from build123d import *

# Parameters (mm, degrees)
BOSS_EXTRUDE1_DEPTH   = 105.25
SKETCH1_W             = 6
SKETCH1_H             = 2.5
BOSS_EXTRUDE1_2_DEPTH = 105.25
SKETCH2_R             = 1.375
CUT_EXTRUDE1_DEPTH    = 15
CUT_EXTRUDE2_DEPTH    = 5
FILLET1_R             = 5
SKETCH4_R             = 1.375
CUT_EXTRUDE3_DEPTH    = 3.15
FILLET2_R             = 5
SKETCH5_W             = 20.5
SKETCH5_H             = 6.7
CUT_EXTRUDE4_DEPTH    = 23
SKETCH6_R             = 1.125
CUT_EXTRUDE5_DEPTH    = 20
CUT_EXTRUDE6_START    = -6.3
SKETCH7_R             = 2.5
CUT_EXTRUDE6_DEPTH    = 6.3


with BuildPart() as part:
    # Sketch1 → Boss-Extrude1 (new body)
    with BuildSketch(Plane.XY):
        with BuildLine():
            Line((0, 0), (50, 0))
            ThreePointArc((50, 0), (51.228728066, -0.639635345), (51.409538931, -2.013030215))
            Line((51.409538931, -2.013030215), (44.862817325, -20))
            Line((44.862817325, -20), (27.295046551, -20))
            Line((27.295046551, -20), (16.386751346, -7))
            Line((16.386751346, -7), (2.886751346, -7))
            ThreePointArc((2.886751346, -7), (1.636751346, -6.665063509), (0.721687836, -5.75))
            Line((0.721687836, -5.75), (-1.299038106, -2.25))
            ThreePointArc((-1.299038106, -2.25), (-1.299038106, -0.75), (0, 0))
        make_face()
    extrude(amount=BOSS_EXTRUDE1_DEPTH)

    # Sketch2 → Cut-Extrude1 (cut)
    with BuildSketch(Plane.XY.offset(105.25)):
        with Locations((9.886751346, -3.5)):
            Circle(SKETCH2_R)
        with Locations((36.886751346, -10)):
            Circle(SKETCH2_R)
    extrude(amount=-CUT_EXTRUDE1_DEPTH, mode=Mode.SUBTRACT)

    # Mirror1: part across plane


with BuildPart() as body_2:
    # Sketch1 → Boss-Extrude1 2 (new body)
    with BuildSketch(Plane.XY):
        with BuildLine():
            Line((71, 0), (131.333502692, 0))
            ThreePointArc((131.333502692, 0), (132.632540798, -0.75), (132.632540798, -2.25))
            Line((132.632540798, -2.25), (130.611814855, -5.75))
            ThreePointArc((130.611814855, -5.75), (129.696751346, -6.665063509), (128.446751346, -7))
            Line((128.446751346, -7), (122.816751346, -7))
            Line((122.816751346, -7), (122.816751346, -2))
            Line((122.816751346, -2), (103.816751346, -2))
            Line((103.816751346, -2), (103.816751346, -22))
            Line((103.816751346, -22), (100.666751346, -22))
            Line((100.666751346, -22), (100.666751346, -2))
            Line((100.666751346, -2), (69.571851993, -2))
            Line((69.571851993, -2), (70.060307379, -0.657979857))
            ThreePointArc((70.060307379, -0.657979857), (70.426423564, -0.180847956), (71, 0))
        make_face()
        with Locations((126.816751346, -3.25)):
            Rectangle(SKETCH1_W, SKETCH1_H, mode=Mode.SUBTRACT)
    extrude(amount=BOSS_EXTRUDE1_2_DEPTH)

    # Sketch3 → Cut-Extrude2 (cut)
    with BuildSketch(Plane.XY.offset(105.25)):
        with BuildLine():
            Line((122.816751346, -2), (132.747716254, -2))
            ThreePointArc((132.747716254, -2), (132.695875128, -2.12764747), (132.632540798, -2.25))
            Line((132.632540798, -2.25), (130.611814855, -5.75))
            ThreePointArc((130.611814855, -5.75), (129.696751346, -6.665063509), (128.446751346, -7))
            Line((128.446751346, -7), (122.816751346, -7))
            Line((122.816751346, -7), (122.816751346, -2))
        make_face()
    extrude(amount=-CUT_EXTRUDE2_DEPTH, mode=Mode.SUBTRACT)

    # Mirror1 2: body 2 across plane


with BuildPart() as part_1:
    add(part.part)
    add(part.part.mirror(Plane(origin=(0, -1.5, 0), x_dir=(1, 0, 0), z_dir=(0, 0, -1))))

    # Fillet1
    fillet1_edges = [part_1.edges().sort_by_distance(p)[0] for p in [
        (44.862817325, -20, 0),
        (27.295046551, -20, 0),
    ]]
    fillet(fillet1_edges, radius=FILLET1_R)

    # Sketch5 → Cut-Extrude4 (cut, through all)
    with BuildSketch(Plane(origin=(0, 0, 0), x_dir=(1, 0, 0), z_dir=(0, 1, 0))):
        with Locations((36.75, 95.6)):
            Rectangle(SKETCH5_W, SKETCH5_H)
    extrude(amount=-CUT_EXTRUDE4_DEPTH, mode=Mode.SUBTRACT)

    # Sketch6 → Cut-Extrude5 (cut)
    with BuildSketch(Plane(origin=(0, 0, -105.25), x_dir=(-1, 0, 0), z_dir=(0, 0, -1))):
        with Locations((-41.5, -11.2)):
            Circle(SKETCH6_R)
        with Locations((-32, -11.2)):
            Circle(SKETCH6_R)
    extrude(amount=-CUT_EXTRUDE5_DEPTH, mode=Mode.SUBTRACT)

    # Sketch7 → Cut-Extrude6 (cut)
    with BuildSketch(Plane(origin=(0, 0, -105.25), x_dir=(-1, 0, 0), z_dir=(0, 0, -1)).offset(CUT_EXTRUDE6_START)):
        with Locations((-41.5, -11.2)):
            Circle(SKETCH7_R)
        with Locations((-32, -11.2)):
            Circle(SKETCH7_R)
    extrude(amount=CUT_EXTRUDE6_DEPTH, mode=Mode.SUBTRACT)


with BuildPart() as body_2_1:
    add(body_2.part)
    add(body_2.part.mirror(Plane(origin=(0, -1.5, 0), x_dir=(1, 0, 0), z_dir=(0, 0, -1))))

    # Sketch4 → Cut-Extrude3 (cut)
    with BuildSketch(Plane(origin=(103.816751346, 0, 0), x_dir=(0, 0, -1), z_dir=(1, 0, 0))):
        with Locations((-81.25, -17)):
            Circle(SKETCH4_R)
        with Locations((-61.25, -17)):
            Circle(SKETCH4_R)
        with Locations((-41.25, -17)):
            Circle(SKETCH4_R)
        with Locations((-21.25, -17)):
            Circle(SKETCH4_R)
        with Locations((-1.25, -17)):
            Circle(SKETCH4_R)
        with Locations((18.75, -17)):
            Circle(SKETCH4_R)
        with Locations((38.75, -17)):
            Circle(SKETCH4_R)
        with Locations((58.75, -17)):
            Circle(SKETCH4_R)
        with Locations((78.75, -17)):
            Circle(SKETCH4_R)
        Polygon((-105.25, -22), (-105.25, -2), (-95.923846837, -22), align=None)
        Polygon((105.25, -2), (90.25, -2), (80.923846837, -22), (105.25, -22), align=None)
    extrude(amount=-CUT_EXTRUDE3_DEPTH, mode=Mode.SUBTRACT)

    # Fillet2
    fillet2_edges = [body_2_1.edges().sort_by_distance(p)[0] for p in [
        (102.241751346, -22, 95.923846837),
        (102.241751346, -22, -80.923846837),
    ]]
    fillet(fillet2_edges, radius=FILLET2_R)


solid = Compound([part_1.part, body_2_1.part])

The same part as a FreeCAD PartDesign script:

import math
import FreeCAD as App
import Part
import Sketcher
from FreeCAD import Vector
Q = App.Units.Quantity


def edges_at(feature, points):
    """Names of the edges that pass closest to the given points."""
    edges = feature.Shape.Edges
    near = lambda p: min(range(len(edges)), key=lambda i: edges[i].distToShape(Part.Vertex(*p))[0])
    return sorted({f"Edge{near(p) + 1}" for p in points})

doc = App.newDocument("Part")
body = doc.addObject("PartDesign::Body", "Body")

# Sketch on XY plane
sketch1 = body.newObject("Sketcher::SketchObject", "Sketch")
sketch1.AttachmentSupport = (doc.getObject("XY_Plane"), [""])
sketch1.MapMode = "FlatFace"
sketch1.addGeometry(Part.LineSegment(Vector(50, 0, 0), Vector(0, 0, 0)), False)
sketch1.addGeometry(Part.ArcOfCircle(Part.Circle(Vector(0, -1.5, 0), Vector(0, 0, 1), 1.5), math.radians(90), math.radians(210)), False)
sketch1.addGeometry(Part.LineSegment(Vector(-1.299038, -2.25, 0), Vector(0.721688, -5.75, 0)), False)
sketch1.addGeometry(Part.ArcOfCircle(Part.Circle(Vector(2.886751, -4.5, 0), Vector(0, 0, 1), 2.5), math.radians(-150), math.radians(-90)), False)
sketch1.addGeometry(Part.LineSegment(Vector(2.886751, -7, 0), Vector(16.386751, -7, 0)), False)
sketch1.addGeometry(Part.LineSegment(Vector(16.386751, -7, 0), Vector(27.295047, -20, 0)), False)
sketch1.addGeometry(Part.LineSegment(Vector(27.295047, -20, 0), Vector(44.862817, -20, 0)), False)
sketch1.addGeometry(Part.LineSegment(Vector(44.862817, -20, 0), Vector(51.409539, -2.01303, 0)), False)
sketch1.addGeometry(Part.ArcOfCircle(Part.Circle(Vector(50, -1.5, 0), Vector(0, 0, 1), 1.5), math.radians(-20), math.radians(90)), False)
sketch1.addConstraint(Sketcher.Constraint("Tangent", 0, 2, 1, 1))
sketch1.addConstraint(Sketcher.Constraint("Tangent", 1, 2, 2, 1))
sketch1.addConstraint(Sketcher.Constraint("Tangent", 2, 2, 3, 1))
sketch1.addConstraint(Sketcher.Constraint("Tangent", 3, 2, 4, 1))
sketch1.addConstraint(Sketcher.Constraint("Coincident", 4, 2, 5, 1))
sketch1.addConstraint(Sketcher.Constraint("Coincident", 5, 2, 6, 1))
sketch1.addConstraint(Sketcher.Constraint("Coincident", 6, 2, 7, 1))
sketch1.addConstraint(Sketcher.Constraint("Tangent", 7, 2, 8, 1))
sketch1.addConstraint(Sketcher.Constraint("Tangent", 8, 2, 0, 1))
sketch1.addConstraint(Sketcher.Constraint("Horizontal", 0))
sketch1.addConstraint(Sketcher.Constraint("Horizontal", 4))
sketch1.addConstraint(Sketcher.Constraint("Horizontal", 6))
sketch1.addConstraint(Sketcher.Constraint("Coincident", 0, 2, -1, 1))
sketch1.addConstraint(Sketcher.Constraint("Equal", 1, 8))
sketch1.addConstraint(Sketcher.Constraint("Radius", 1, 1.5))
sketch1.addConstraint(Sketcher.Constraint("Radius", 3, 2.5))
sketch1.addConstraint(Sketcher.Constraint("DistanceX", 0, 2, 0, 1, 50.0))
sketch1.addConstraint(Sketcher.Constraint("Angle", 2, Q("-60 deg")))
sketch1.addConstraint(Sketcher.Constraint("Angle", 5, Q("-50 deg")))
sketch1.addConstraint(Sketcher.Constraint("Angle", 7, Q("70 deg")))
sketch1.addConstraint(Sketcher.Constraint("DistanceX", 4, 1, 4, 2, 13.5))
sketch1.addConstraint(Sketcher.Constraint("DistanceY", 3, 2, -1, 1, 7.0))
sketch1.addConstraint(Sketcher.Constraint("DistanceY", 5, 2, -1, 1, 20.0))
pad1 = body.newObject("PartDesign::Pad", "Pad")
pad1.Profile = sketch1
pad1.Length = 105.25

# Sketch on XY plane
sketch2 = body.newObject("Sketcher::SketchObject", "Sketch001")
sketch2.AttachmentSupport = (doc.getObject("XY_Plane"), [""])
sketch2.MapMode = "FlatFace"
sketch2.AttachmentOffset = App.Placement(Vector(0, 0, 105.25), App.Rotation())
sketch2.addGeometry(Part.Circle(Vector(9.886751, -3.5, 0), Vector(0, 0, 1), 1.375), False)
sketch2.addGeometry(Part.Circle(Vector(36.886751, -10, 0), Vector(0, 0, 1), 1.375), False)
sketch2.addConstraint(Sketcher.Constraint("Equal", 0, 1))
sketch2.addConstraint(Sketcher.Constraint("Diameter", 0, 2.75))
sketch2.addConstraint(Sketcher.Constraint("DistanceY", 1, 3, -1, 1, 10.0))
sketch2.addConstraint(Sketcher.Constraint("DistanceX", 0, 3, 1, 3, 27.0))
sketch2.addConstraint(Sketcher.Constraint("DistanceY", 0, 3, -1, 1, 3.5))
sketch2.addConstraint(Sketcher.Constraint("DistanceX", -1, 1, 0, 3, 9.886751))
pocket1 = body.newObject("PartDesign::Pocket", "Pocket")
pocket1.Profile = sketch2
pocket1.Length = 15
body2 = doc.addObject("PartDesign::Body", "Body001")

# Sketch on XY plane
sketch3 = body2.newObject("Sketcher::SketchObject", "Sketch002")
sketch3.AttachmentSupport = (doc.getObject("XY_Plane001"), [""])
sketch3.MapMode = "FlatFace"
sketch3.addGeometry(Part.LineSegment(Vector(131.333503, 0, 0), Vector(71, 0, 0)), False)
sketch3.addGeometry(Part.ArcOfCircle(Part.Circle(Vector(71, -1, 0), Vector(0, 0, 1), 1), math.radians(90), math.radians(160)), False)
sketch3.addGeometry(Part.LineSegment(Vector(70.060307, -0.65798, 0), Vector(69.571852, -2, 0)), False)
sketch3.addGeometry(Part.LineSegment(Vector(69.571852, -2, 0), Vector(100.666751, -2, 0)), False)
sketch3.addGeometry(Part.LineSegment(Vector(100.666751, -2, 0), Vector(100.666751, -22, 0)), False)
sketch3.addGeometry(Part.LineSegment(Vector(100.666751, -22, 0), Vector(103.816751, -22, 0)), False)
sketch3.addGeometry(Part.LineSegment(Vector(103.816751, -22, 0), Vector(103.816751, -2, 0)), False)
sketch3.addGeometry(Part.LineSegment(Vector(103.816751, -2, 0), Vector(122.816751, -2, 0)), False)
sketch3.addGeometry(Part.LineSegment(Vector(122.816751, -2, 0), Vector(122.816751, -7, 0)), False)
sketch3.addGeometry(Part.LineSegment(Vector(122.816751, -7, 0), Vector(128.446751, -7, 0)), False)
sketch3.addGeometry(Part.ArcOfCircle(Part.Circle(Vector(128.446751, -4.5, 0), Vector(0, 0, 1), 2.5), math.radians(-90), math.radians(-30)), False)
sketch3.addGeometry(Part.LineSegment(Vector(130.611815, -5.75, 0), Vector(132.632541, -2.25, 0)), False)
sketch3.addGeometry(Part.ArcOfCircle(Part.Circle(Vector(131.333503, -1.5, 0), Vector(0, 0, 1), 1.5), math.radians(-30), math.radians(90)), False)
sketch3.addGeometry(Part.LineSegment(Vector(123.816751, -4.5, 0), Vector(123.816751, -2, 0)), False)
sketch3.addGeometry(Part.LineSegment(Vector(123.816751, -2, 0), Vector(129.816751, -2, 0)), False)
sketch3.addGeometry(Part.LineSegment(Vector(129.816751, -2, 0), Vector(129.816751, -4.5, 0)), False)
sketch3.addGeometry(Part.LineSegment(Vector(129.816751, -4.5, 0), Vector(123.816751, -4.5, 0)), False)
sketch3.addConstraint(Sketcher.Constraint("Tangent", 0, 2, 1, 1))
sketch3.addConstraint(Sketcher.Constraint("Tangent", 1, 2, 2, 1))
sketch3.addConstraint(Sketcher.Constraint("Coincident", 2, 2, 3, 1))
sketch3.addConstraint(Sketcher.Constraint("Coincident", 3, 2, 4, 1))
sketch3.addConstraint(Sketcher.Constraint("Coincident", 4, 2, 5, 1))
sketch3.addConstraint(Sketcher.Constraint("Coincident", 5, 2, 6, 1))
sketch3.addConstraint(Sketcher.Constraint("Coincident", 6, 2, 7, 1))
sketch3.addConstraint(Sketcher.Constraint("Coincident", 7, 2, 8, 1))
sketch3.addConstraint(Sketcher.Constraint("Coincident", 8, 2, 9, 1))
sketch3.addConstraint(Sketcher.Constraint("Tangent", 9, 2, 10, 1))
sketch3.addConstraint(Sketcher.Constraint("Tangent", 10, 2, 11, 1))
sketch3.addConstraint(Sketcher.Constraint("Tangent", 11, 2, 12, 1))
sketch3.addConstraint(Sketcher.Constraint("Tangent", 12, 2, 0, 1))
sketch3.addConstraint(Sketcher.Constraint("Coincident", 13, 2, 14, 1))
sketch3.addConstraint(Sketcher.Constraint("Coincident", 14, 2, 15, 1))
sketch3.addConstraint(Sketcher.Constraint("Coincident", 15, 2, 16, 1))
sketch3.addConstraint(Sketcher.Constraint("Coincident", 16, 2, 13, 1))
sketch3.addConstraint(Sketcher.Constraint("Horizontal", 0))
sketch3.addConstraint(Sketcher.Constraint("Horizontal", 3))
sketch3.addConstraint(Sketcher.Constraint("Vertical", 4))
sketch3.addConstraint(Sketcher.Constraint("Horizontal", 5))
sketch3.addConstraint(Sketcher.Constraint("Vertical", 6))
sketch3.addConstraint(Sketcher.Constraint("Horizontal", 7))
sketch3.addConstraint(Sketcher.Constraint("Vertical", 8))
sketch3.addConstraint(Sketcher.Constraint("Horizontal", 9))
sketch3.addConstraint(Sketcher.Constraint("Vertical", 13))
sketch3.addConstraint(Sketcher.Constraint("Horizontal", 14))
sketch3.addConstraint(Sketcher.Constraint("Vertical", 15))
sketch3.addConstraint(Sketcher.Constraint("Horizontal", 16))
sketch3.addConstraint(Sketcher.Constraint("PointOnObject", 0, 2, -1))
sketch3.addConstraint(Sketcher.Constraint("Horizontal", 3, 2, 6, 2))
sketch3.addConstraint(Sketcher.Constraint("Horizontal", 7, 2, 13, 2))
sketch3.addConstraint(Sketcher.Constraint("Horizontal", 10, 3, 15, 2))
sketch3.addConstraint(Sketcher.Constraint("Radius", 1, 1.0))
sketch3.addConstraint(Sketcher.Constraint("Radius", 10, 2.5))
sketch3.addConstraint(Sketcher.Constraint("Radius", 12, 1.5))
sketch3.addConstraint(Sketcher.Constraint("DistanceX", 7, 1, 7, 2, 19.0))
sketch3.addConstraint(Sketcher.Constraint("DistanceX", 14, 1, 14, 2, 6.0))
sketch3.addConstraint(Sketcher.Constraint("DistanceY", 4, 2, 4, 1, 20.0))
sketch3.addConstraint(Sketcher.Constraint("DistanceY", 8, 2, 8, 1, 5.0))
sketch3.addConstraint(Sketcher.Constraint("Angle", 2, Q("-110 deg")))
sketch3.addConstraint(Sketcher.Constraint("Angle", 11, Q("60 deg")))
sketch3.addConstraint(Sketcher.Constraint("DistanceX", -1, 1, 1, 3, 71.0))
sketch3.addConstraint(Sketcher.Constraint("DistanceY", 2, 2, -1, 1, 2.0))
sketch3.addConstraint(Sketcher.Constraint("DistanceX", 7, 2, 13, 2, 1.0))
sketch3.addConstraint(Sketcher.Constraint("DistanceX", 5, 1, 5, 2, 3.15))
sketch3.addConstraint(Sketcher.Constraint("DistanceX", 9, 1, 9, 2, 5.63))
sketch3.addConstraint(Sketcher.Constraint("DistanceX", 3, 1, 3, 2, 31.094899))
pad2 = body2.newObject("PartDesign::Pad", "Pad001")
pad2.Profile = sketch3
pad2.Length = 105.25

# Sketch on XY plane
sketch4 = body2.newObject("Sketcher::SketchObject", "Sketch003")
sketch4.AttachmentSupport = (doc.getObject("XY_Plane001"), [""])
sketch4.MapMode = "FlatFace"
sketch4.AttachmentOffset = App.Placement(Vector(0, 0, 105.25), App.Rotation())
sketch4.addGeometry(Part.LineSegment(Vector(132.747716, -2, 0), Vector(122.816751, -2, 0)), False)
sketch4.addGeometry(Part.LineSegment(Vector(122.816751, -2, 0), Vector(122.816751, -7, 0)), False)
sketch4.addGeometry(Part.LineSegment(Vector(122.816751, -7, 0), Vector(128.446751, -7, 0)), False)
sketch4.addGeometry(Part.ArcOfCircle(Part.Circle(Vector(128.446751, -4.5, 0), Vector(0, 0, 1), 2.5), math.radians(-90), math.radians(-30)), False)
sketch4.addGeometry(Part.LineSegment(Vector(130.611815, -5.75, 0), Vector(132.632541, -2.25, 0)), False)
sketch4.addGeometry(Part.ArcOfCircle(Part.Circle(Vector(131.333503, -1.5, 0), Vector(0, 0, 1), 1.5), math.radians(-30), math.radians(-19.47122)), False)
sketch4.addConstraint(Sketcher.Constraint("Coincident", 0, 2, 1, 1))
sketch4.addConstraint(Sketcher.Constraint("Coincident", 1, 2, 2, 1))
sketch4.addConstraint(Sketcher.Constraint("Tangent", 2, 2, 3, 1))
sketch4.addConstraint(Sketcher.Constraint("Tangent", 3, 2, 4, 1))
sketch4.addConstraint(Sketcher.Constraint("Tangent", 4, 2, 5, 1))
sketch4.addConstraint(Sketcher.Constraint("Coincident", 5, 2, 0, 1))
sketch4.addConstraint(Sketcher.Constraint("Horizontal", 0))
sketch4.addConstraint(Sketcher.Constraint("Vertical", 1))
sketch4.addConstraint(Sketcher.Constraint("Horizontal", 2))
sketch4.addConstraint(Sketcher.Constraint("Radius", 3, 2.5))
sketch4.addConstraint(Sketcher.Constraint("Radius", 5, 1.5))
sketch4.addConstraint(Sketcher.Constraint("DistanceY", 1, 2, 1, 1, 5.0))
sketch4.addConstraint(Sketcher.Constraint("Angle", 4, Q("60 deg")))
sketch4.addConstraint(Sketcher.Constraint("DistanceY", 0, 2, -1, 1, 2.0))
sketch4.addConstraint(Sketcher.Constraint("DistanceY", 3, 3, 5, 3, 3.0))
sketch4.addConstraint(Sketcher.Constraint("DistanceX", 2, 1, 2, 2, 5.63))
sketch4.addConstraint(Sketcher.Constraint("DistanceX", -1, 1, 3, 3, 128.446751))
pocket2 = body2.newObject("PartDesign::Pocket", "Pocket001")
pocket2.Profile = sketch4
pocket2.Length = 5
body3 = doc.addObject("PartDesign::Body", "Body002")
doc.recompute()

body3.BaseFeature = body
doc.recompute()

mirroring = doc.addObject("Part::Mirroring", "Mirroring")
mirroring.Source = body
mirroring.Base = Vector(0, -1.5, 0)
mirroring.Normal = Vector(0, 0, -1)
body4 = doc.addObject("PartDesign::Body", "Body003")
body4.BaseFeature = mirroring
boolean = body3.newObject("PartDesign::Boolean", "Boolean")
boolean.Type = "Fuse"
boolean.addObjects([body4])
doc.recompute()

fillet = body3.newObject("PartDesign::Fillet", "Fillet")
fillet.Base = (boolean, edges_at(boolean, [(44.863, -20, 0), (27.295, -20, 0)]))
fillet.Radius = 5

# Sketch on XZ plane
sketch5 = body3.newObject("Sketcher::SketchObject", "Sketch004")
sketch5.AttachmentSupport = (doc.getObject("XZ_Plane002"), [""])
sketch5.MapMode = "FlatFace"
sketch5.addGeometry(Part.LineSegment(Vector(26.5, -98.95, 0), Vector(26.5, -92.25, 0)), False)
sketch5.addGeometry(Part.LineSegment(Vector(26.5, -92.25, 0), Vector(47, -92.25, 0)), False)
sketch5.addGeometry(Part.LineSegment(Vector(47, -92.25, 0), Vector(47, -98.95, 0)), False)
sketch5.addGeometry(Part.LineSegment(Vector(47, -98.95, 0), Vector(26.5, -98.95, 0)), False)
sketch5.addConstraint(Sketcher.Constraint("Coincident", 0, 2, 1, 1))
sketch5.addConstraint(Sketcher.Constraint("Coincident", 1, 2, 2, 1))
sketch5.addConstraint(Sketcher.Constraint("Coincident", 2, 2, 3, 1))
sketch5.addConstraint(Sketcher.Constraint("Coincident", 3, 2, 0, 1))
sketch5.addConstraint(Sketcher.Constraint("Vertical", 0))
sketch5.addConstraint(Sketcher.Constraint("Horizontal", 1))
sketch5.addConstraint(Sketcher.Constraint("Vertical", 2))
sketch5.addConstraint(Sketcher.Constraint("Horizontal", 3))
sketch5.addConstraint(Sketcher.Constraint("DistanceX", 1, 1, 1, 2, 20.5))
sketch5.addConstraint(Sketcher.Constraint("DistanceY", 0, 1, 0, 2, 6.7))
sketch5.addConstraint(Sketcher.Constraint("DistanceX", -1, 1, 1, 2, 47.0))
sketch5.addConstraint(Sketcher.Constraint("DistanceY", 0, 2, -1, 1, 92.25))
pocket3 = body3.newObject("PartDesign::Pocket", "Pocket002")
pocket3.Profile = sketch5
pocket3.Type = "ThroughAll"
pocket3.Reversed = True

# Sketch on XY plane
sketch6 = body3.newObject("Sketcher::SketchObject", "Sketch005")
sketch6.AttachmentSupport = (doc.getObject("XY_Plane002"), [""])
sketch6.MapMode = "FlatFace"
sketch6.AttachmentOffset = App.Placement(Vector(0, 0, -105.25), App.Rotation())
sketch6.addGeometry(Part.Circle(Vector(41.5, -11.2, 0), Vector(0, 0, 1), 1.125), False)
sketch6.addGeometry(Part.Circle(Vector(32, -11.2, 0), Vector(0, 0, 1), 1.125), False)
sketch6.addConstraint(Sketcher.Constraint("Equal", 0, 1))
sketch6.addConstraint(Sketcher.Constraint("Horizontal", 0, 3, 1, 3))
sketch6.addConstraint(Sketcher.Constraint("Diameter", 0, 2.25))
sketch6.addConstraint(Sketcher.Constraint("DistanceX", -1, 1, 1, 3, 32.0))
sketch6.addConstraint(Sketcher.Constraint("DistanceX", -1, 1, 0, 3, 41.5))
sketch6.addConstraint(Sketcher.Constraint("DistanceY", 0, 3, -1, 1, 11.2))
pocket4 = body3.newObject("PartDesign::Pocket", "Pocket003")
pocket4.Profile = sketch6
pocket4.Length = 20
pocket4.Reversed = True

# Sketch on XY plane
sketch7 = body3.newObject("Sketcher::SketchObject", "Sketch006")
sketch7.AttachmentSupport = (doc.getObject("XY_Plane002"), [""])
sketch7.MapMode = "FlatFace"
sketch7.AttachmentOffset = App.Placement(Vector(0, 0, -98.95), App.Rotation())
sketch7.addGeometry(Part.Circle(Vector(41.5, -11.2, 0), Vector(0, 0, 1), 2.5), False)
sketch7.addGeometry(Part.Circle(Vector(32, -11.2, 0), Vector(0, 0, 1), 2.5), False)
sketch7.addConstraint(Sketcher.Constraint("Equal", 0, 1))
sketch7.addConstraint(Sketcher.Constraint("Horizontal", 0, 3, 1, 3))
sketch7.addConstraint(Sketcher.Constraint("Diameter", 0, 5.0))
sketch7.addConstraint(Sketcher.Constraint("DistanceX", -1, 1, 1, 3, 32.0))
sketch7.addConstraint(Sketcher.Constraint("DistanceX", -1, 1, 0, 3, 41.5))
sketch7.addConstraint(Sketcher.Constraint("DistanceY", 0, 3, -1, 1, 11.2))
pocket5 = body3.newObject("PartDesign::Pocket", "Pocket004")
pocket5.Profile = sketch7
pocket5.Length = 6.3
body5 = doc.addObject("PartDesign::Body", "Body004")
doc.recompute()

body5.BaseFeature = body2
doc.recompute()

mirroring2 = doc.addObject("Part::Mirroring", "Mirroring001")
mirroring2.Source = body2
mirroring2.Base = Vector(0, -1.5, 0)
mirroring2.Normal = Vector(0, 0, -1)
body6 = doc.addObject("PartDesign::Body", "Body005")
body6.BaseFeature = mirroring2
boolean2 = body5.newObject("PartDesign::Boolean", "Boolean001")
boolean2.Type = "Fuse"
boolean2.addObjects([body6])
doc.recompute()

# Sketch on YZ plane
sketch8 = body5.newObject("Sketcher::SketchObject", "Sketch007")
sketch8.AttachmentSupport = (doc.getObject("YZ_Plane004"), [""])
sketch8.MapMode = "FlatFace"
sketch8.AttachmentOffset = App.Placement(Vector(0, 0, 103.816751), App.Rotation())
sketch8.addGeometry(Part.Circle(Vector(-17, 81.25, 0), Vector(0, 0, 1), 1.375), False)
sketch8.addGeometry(Part.Circle(Vector(-17, 61.25, 0), Vector(0, 0, 1), 1.375), False)
sketch8.addGeometry(Part.Circle(Vector(-17, 41.25, 0), Vector(0, 0, 1), 1.375), False)
sketch8.addGeometry(Part.Circle(Vector(-17, 21.25, 0), Vector(0, 0, 1), 1.375), False)
sketch8.addGeometry(Part.Circle(Vector(-17, 1.25, 0), Vector(0, 0, 1), 1.375), False)
sketch8.addGeometry(Part.Circle(Vector(-17, -18.75, 0), Vector(0, 0, 1), 1.375), False)
sketch8.addGeometry(Part.Circle(Vector(-17, -38.75, 0), Vector(0, 0, 1), 1.375), False)
sketch8.addGeometry(Part.Circle(Vector(-17, -58.75, 0), Vector(0, 0, 1), 1.375), False)
sketch8.addGeometry(Part.Circle(Vector(-17, -78.75, 0), Vector(0, 0, 1), 1.375), False)
sketch8.addGeometry(Part.LineSegment(Vector(-2, 105.25, 0), Vector(-22, 105.25, 0)), False)
sketch8.addGeometry(Part.LineSegment(Vector(-22, 105.25, 0), Vector(-22, 95.923847, 0)), False)
sketch8.addGeometry(Part.LineSegment(Vector(-22, 95.923847, 0), Vector(-2, 105.25, 0)), False)
sketch8.addGeometry(Part.LineSegment(Vector(-2, -105.25, 0), Vector(-2, -90.25, 0)), False)
sketch8.addGeometry(Part.LineSegment(Vector(-2, -90.25, 0), Vector(-22, -80.923847, 0)), False)
sketch8.addGeometry(Part.LineSegment(Vector(-22, -80.923847, 0), Vector(-22, -105.25, 0)), False)
sketch8.addGeometry(Part.LineSegment(Vector(-22, -105.25, 0), Vector(-2, -105.25, 0)), False)
sketch8.addConstraint(Sketcher.Constraint("Coincident", 9, 2, 10, 1))
sketch8.addConstraint(Sketcher.Constraint("Coincident", 10, 2, 11, 1))
sketch8.addConstraint(Sketcher.Constraint("Coincident", 11, 2, 9, 1))
sketch8.addConstraint(Sketcher.Constraint("Coincident", 12, 2, 13, 1))
sketch8.addConstraint(Sketcher.Constraint("Coincident", 13, 2, 14, 1))
sketch8.addConstraint(Sketcher.Constraint("Coincident", 14, 2, 15, 1))
sketch8.addConstraint(Sketcher.Constraint("Coincident", 15, 2, 12, 1))
sketch8.addConstraint(Sketcher.Constraint("Horizontal", 9))
sketch8.addConstraint(Sketcher.Constraint("Vertical", 10))
sketch8.addConstraint(Sketcher.Constraint("Vertical", 12))
sketch8.addConstraint(Sketcher.Constraint("Vertical", 14))
sketch8.addConstraint(Sketcher.Constraint("Horizontal", 15))
sketch8.addConstraint(Sketcher.Constraint("Equal", 0, 1))
sketch8.addConstraint(Sketcher.Constraint("Equal", 1, 2))
sketch8.addConstraint(Sketcher.Constraint("Equal", 2, 3))
sketch8.addConstraint(Sketcher.Constraint("Equal", 3, 4))
sketch8.addConstraint(Sketcher.Constraint("Equal", 4, 5))
sketch8.addConstraint(Sketcher.Constraint("Equal", 5, 6))
sketch8.addConstraint(Sketcher.Constraint("Equal", 6, 7))
sketch8.addConstraint(Sketcher.Constraint("Equal", 7, 8))
sketch8.addConstraint(Sketcher.Constraint("Symmetric", 9, 2, 14, 2, -1))
sketch8.addConstraint(Sketcher.Constraint("Vertical", 0, 3, 1, 3))
sketch8.addConstraint(Sketcher.Constraint("Vertical", 1, 3, 2, 3))
sketch8.addConstraint(Sketcher.Constraint("Vertical", 2, 3, 3, 3))
sketch8.addConstraint(Sketcher.Constraint("Vertical", 3, 3, 4, 3))
sketch8.addConstraint(Sketcher.Constraint("Vertical", 4, 3, 5, 3))
sketch8.addConstraint(Sketcher.Constraint("Vertical", 5, 3, 6, 3))
sketch8.addConstraint(Sketcher.Constraint("Vertical", 6, 3, 7, 3))
sketch8.addConstraint(Sketcher.Constraint("Vertical", 7, 3, 8, 3))
sketch8.addConstraint(Sketcher.Constraint("Vertical", 11, 2, 12, 2))
sketch8.addConstraint(Sketcher.Constraint("Equal", 11, 13))
sketch8.addConstraint(Sketcher.Constraint("Diameter", 0, 2.75))
sketch8.addConstraint(Sketcher.Constraint("DistanceX", 9, 2, 9, 1, 20.0))
sketch8.addConstraint(Sketcher.Constraint("DistanceY", 12, 1, 12, 2, 15.0))
sketch8.addConstraint(Sketcher.Constraint("Angle", 11, Q("25 deg")))
sketch8.addConstraint(Sketcher.Constraint("DistanceX", 0, 3, -1, 1, 17.0))
sketch8.addConstraint(Sketcher.Constraint("DistanceX", 9, 2, -1, 1, 22.0))
sketch8.addConstraint(Sketcher.Constraint("DistanceY", 1, 3, 0, 3, 20.0))
sketch8.addConstraint(Sketcher.Constraint("DistanceY", 2, 3, 1, 3, 20.0))
sketch8.addConstraint(Sketcher.Constraint("DistanceY", 3, 3, 2, 3, 20.0))
sketch8.addConstraint(Sketcher.Constraint("DistanceY", 4, 3, 3, 3, 20.0))
sketch8.addConstraint(Sketcher.Constraint("DistanceY", 5, 3, 4, 3, 20.0))
sketch8.addConstraint(Sketcher.Constraint("DistanceY", 6, 3, 5, 3, 20.0))
sketch8.addConstraint(Sketcher.Constraint("DistanceY", 7, 3, 6, 3, 20.0))
sketch8.addConstraint(Sketcher.Constraint("DistanceY", 8, 3, 7, 3, 20.0))
sketch8.addConstraint(Sketcher.Constraint("DistanceY", 0, 3, 9, 2, 24.0))
sketch8.addConstraint(Sketcher.Constraint("DistanceY", 12, 2, 8, 3, 11.5))
pocket6 = body5.newObject("PartDesign::Pocket", "Pocket005")
pocket6.Profile = sketch8
pocket6.Length = 3.15
doc.recompute()

fillet2 = body5.newObject("PartDesign::Fillet", "Fillet001")
fillet2.Base = (pocket6, edges_at(pocket6, [(102.242, -22, 95.924), (102.242, -22, -80.924)]))
fillet2.Radius = 5
mirroring.Visibility = False
mirroring2.Visibility = False

doc.recompute()
